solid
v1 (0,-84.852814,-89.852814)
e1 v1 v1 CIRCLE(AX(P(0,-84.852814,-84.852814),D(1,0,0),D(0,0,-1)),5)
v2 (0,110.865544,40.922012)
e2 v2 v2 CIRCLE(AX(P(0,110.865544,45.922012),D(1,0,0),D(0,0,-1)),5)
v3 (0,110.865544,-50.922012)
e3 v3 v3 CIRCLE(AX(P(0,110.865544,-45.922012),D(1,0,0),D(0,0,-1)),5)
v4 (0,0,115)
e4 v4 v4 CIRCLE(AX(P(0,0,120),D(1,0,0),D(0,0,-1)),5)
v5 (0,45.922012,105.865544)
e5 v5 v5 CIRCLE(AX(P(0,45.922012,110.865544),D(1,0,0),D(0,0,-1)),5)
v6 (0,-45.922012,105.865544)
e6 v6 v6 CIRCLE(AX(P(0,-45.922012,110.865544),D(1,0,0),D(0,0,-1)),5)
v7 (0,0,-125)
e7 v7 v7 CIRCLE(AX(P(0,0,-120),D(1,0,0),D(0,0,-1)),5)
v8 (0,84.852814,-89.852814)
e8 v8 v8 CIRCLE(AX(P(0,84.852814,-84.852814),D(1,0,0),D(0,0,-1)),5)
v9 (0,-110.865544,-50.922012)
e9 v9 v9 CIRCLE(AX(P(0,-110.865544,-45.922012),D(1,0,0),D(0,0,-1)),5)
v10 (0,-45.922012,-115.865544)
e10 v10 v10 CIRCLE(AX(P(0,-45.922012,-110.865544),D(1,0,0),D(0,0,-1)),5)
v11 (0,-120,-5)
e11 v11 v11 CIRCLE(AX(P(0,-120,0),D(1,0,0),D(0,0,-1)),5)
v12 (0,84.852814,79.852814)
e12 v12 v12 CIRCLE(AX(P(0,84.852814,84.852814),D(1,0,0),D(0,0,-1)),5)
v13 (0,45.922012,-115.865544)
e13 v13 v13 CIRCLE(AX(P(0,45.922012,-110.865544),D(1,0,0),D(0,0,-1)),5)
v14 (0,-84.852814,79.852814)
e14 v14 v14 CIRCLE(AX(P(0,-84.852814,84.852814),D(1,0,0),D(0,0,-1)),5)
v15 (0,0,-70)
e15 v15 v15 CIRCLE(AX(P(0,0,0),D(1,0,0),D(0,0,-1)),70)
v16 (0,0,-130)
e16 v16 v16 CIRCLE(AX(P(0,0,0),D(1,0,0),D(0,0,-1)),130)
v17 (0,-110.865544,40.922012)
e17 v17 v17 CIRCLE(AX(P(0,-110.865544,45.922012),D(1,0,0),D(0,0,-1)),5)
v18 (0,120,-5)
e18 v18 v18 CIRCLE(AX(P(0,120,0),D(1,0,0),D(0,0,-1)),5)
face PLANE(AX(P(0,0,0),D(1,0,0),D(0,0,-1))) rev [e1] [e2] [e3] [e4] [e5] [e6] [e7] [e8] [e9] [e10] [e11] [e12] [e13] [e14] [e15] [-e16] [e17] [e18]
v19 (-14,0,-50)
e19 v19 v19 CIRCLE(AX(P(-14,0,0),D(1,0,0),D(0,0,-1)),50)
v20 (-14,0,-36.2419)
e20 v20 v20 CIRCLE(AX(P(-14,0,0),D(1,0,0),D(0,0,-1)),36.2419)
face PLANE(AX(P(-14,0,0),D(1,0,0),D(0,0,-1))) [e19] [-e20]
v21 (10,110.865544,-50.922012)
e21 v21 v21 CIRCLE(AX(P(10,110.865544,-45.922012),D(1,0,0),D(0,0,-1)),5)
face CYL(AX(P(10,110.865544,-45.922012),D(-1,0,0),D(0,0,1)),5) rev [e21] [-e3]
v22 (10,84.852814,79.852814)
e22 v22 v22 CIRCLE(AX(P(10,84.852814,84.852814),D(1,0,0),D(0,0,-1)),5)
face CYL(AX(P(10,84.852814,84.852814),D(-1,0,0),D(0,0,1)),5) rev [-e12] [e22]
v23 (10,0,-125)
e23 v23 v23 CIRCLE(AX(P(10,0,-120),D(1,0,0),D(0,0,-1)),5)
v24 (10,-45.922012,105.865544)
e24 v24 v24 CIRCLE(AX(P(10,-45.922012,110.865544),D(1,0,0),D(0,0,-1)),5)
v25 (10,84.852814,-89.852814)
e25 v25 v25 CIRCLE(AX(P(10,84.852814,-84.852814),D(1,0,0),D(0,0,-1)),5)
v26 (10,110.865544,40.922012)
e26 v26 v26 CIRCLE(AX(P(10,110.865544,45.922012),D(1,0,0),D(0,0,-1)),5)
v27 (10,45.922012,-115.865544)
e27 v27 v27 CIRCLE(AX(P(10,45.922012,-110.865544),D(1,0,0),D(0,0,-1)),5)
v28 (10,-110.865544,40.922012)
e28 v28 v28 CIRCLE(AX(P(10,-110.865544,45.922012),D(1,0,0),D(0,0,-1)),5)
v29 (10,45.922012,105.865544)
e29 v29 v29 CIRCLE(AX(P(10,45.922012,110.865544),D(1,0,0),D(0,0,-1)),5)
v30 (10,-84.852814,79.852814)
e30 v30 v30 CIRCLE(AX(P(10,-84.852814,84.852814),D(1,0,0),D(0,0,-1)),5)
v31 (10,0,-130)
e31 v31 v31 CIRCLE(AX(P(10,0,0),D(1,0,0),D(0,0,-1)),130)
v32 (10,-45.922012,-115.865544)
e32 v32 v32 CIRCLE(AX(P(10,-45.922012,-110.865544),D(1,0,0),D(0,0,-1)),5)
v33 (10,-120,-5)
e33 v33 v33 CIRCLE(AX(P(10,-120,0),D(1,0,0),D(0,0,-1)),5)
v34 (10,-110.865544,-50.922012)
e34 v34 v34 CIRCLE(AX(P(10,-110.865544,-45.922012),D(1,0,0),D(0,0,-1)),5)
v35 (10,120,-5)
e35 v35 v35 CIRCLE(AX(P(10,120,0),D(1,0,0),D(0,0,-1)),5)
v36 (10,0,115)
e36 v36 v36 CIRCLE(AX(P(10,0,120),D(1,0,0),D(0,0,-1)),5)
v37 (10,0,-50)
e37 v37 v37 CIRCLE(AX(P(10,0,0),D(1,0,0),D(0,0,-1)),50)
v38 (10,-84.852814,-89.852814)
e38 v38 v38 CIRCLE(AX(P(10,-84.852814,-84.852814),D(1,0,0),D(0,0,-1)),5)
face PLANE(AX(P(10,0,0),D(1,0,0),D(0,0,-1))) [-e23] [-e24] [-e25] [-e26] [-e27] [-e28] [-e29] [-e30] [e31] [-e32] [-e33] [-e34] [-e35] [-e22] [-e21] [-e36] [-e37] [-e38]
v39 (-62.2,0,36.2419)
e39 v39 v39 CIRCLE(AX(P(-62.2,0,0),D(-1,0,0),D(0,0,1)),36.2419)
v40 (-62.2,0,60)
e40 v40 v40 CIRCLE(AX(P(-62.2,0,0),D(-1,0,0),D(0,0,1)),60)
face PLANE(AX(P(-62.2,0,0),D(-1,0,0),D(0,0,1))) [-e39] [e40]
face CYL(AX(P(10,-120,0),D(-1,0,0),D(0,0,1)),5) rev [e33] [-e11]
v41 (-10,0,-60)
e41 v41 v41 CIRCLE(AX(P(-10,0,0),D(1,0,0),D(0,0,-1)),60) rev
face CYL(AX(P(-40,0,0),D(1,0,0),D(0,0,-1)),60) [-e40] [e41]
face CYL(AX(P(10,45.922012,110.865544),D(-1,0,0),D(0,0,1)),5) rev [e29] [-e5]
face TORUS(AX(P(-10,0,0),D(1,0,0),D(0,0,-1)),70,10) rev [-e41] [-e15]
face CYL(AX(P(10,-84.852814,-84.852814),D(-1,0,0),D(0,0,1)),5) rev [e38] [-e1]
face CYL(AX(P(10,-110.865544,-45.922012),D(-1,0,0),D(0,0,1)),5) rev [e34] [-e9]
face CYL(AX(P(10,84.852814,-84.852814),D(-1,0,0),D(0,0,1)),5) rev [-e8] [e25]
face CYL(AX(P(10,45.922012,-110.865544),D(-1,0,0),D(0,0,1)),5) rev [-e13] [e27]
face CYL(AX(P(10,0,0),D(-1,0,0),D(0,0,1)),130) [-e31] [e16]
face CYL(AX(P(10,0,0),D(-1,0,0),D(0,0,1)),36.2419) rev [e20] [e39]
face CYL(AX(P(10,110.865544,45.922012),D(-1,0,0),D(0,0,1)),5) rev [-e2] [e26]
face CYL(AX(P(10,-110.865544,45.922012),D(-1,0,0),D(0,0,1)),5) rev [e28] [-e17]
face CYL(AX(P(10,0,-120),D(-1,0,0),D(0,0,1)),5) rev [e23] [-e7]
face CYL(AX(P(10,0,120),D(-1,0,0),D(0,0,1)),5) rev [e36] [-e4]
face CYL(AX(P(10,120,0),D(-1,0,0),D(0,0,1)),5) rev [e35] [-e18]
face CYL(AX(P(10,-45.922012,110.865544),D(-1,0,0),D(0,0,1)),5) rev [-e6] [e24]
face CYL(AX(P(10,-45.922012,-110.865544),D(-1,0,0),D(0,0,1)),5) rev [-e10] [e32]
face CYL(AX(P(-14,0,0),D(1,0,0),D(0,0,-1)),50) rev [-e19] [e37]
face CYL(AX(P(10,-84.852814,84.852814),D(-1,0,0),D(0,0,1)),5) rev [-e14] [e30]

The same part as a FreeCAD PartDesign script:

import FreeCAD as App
import Part
import Sketcher
from FreeCAD import Vector
Q = App.Units.Quantity


def edges_at(feature, points):
    """Names of the edges that pass closest to the given points."""
    edges = feature.Shape.Edges
    near = lambda p: min(range(len(edges)), key=lambda i: edges[i].distToShape(Part.Vertex(*p))[0])
    return sorted({f"Edge{near(p) + 1}" for p in points})

doc = App.newDocument("Part")
body = doc.addObject("PartDesign::Body", "Body")

sketch1 = body.newObject("Sketcher::SketchObject", "Sketch")
sketch1.AttachmentSupport = (doc.getObject("YZ_Plane"), [""])
sketch1.MapMode = "FlatFace"
sketch1.addGeometry([
    Part.Circle(Vector(0, 0, 0), Vector(0, 0, 1), 130),
    Part.Circle(Vector(-85, 85, 0), Vector(0, 0, 1), 5),
    Part.Circle(Vector(-111, 46, 0), Vector(0, 0, 1), 5),
    Part.Circle(Vector(-46, 111, 0), Vector(0, 0, 1), 5),
    Part.Circle(Vector(-120, 0, 0), Vector(0, 0, 1), 5),
    Part.Circle(Vector(-111, -46, 0), Vector(0, 0, 1), 5),
    Part.Circle(Vector(-85, -85, 0), Vector(0, 0, 1), 5),
    Part.Circle(Vector(-46, -111, 0), Vector(0, 0, 1), 5),
    Part.Circle(Vector(0, 120, 0), Vector(0, 0, 1), 5),
    Part.Circle(Vector(46, 111, 0), Vector(0, 0, 1), 5),
    Part.Circle(Vector(85, 85, 0), Vector(0, 0, 1), 5),
    Part.Circle(Vector(111, 46, 0), Vector(0, 0, 1), 5),
    Part.Circle(Vector(0, 0, 0), Vector(0, 0, 1), 36),
    Part.Circle(Vector(0, -120, 0), Vector(0, 0, 1), 5),
    Part.Circle(Vector(46, -111, 0), Vector(0, 0, 1), 5),
    Part.Circle(Vector(120, 0, 0), Vector(0, 0, 1), 5),
    Part.Circle(Vector(111, -46, 0), Vector(0, 0, 1), 5),
    Part.Circle(Vector(85, -85, 0), Vector(0, 0, 1), 5),
], False)
sketch1.addConstraint([
    Sketcher.Constraint("Coincident", 0, 3, -1, 1),
    Sketcher.Constraint("Coincident", 12, 3, -1, 1),
    Sketcher.Constraint("Equal", 1, 2),
    Sketcher.Constraint("Equal", 2, 3),
    Sketcher.Constraint("Equal", 3, 4),
    Sketcher.Constraint("Equal", 4, 5),
    Sketcher.Constraint("Equal", 5, 6),
    Sketcher.Constraint("Equal", 6, 7),
    Sketcher.Constraint("Equal", 7, 8),
    Sketcher.Constraint("Equal", 8, 9),
    Sketcher.Constraint("Equal", 9, 10),
    Sketcher.Constraint("Equal", 10, 11),
    Sketcher.Constraint("Equal", 11, 13),
    Sketcher.Constraint("Equal", 13, 14),
    Sketcher.Constraint("Equal", 14, 15),
    Sketcher.Constraint("Equal", 15, 16),
    Sketcher.Constraint("Equal", 16, 17),
    Sketcher.Constraint("Symmetric", 7, 3, 9, 3, -1, 1),
    Sketcher.Constraint("Symmetric", 6, 3, 10, 3, -1, 1),
    Sketcher.Constraint("Symmetric", 5, 3, 11, 3, -1, 1),
    Sketcher.Constraint("Symmetric", 8, 3, 13, 3, -1, 1),
    Sketcher.Constraint("Symmetric", 3, 3, 14, 3, -1, 1),
    Sketcher.Constraint("Symmetric", 4, 3, 15, 3, -1, 1),
    Sketcher.Constraint("Symmetric", 2, 3, 16, 3, -1, 1),
    Sketcher.Constraint("Symmetric", 1, 3, 17, 3, -1, 1),
    Sketcher.Constraint("Symmetric", 3, 3, 9, 3, -2),
    Sketcher.Constraint("Symmetric", 1, 3, 10, 3, -2),
    Sketcher.Constraint("Symmetric", 2, 3, 11, 3, -2),
    Sketcher.Constraint("PointOnObject", 4, 3, -1),
    Sketcher.Constraint("PointOnObject", 8, 3, -2),
    Sketcher.Constraint("Diameter", 0, Q("260 mm")),
    Sketcher.Constraint("Diameter", 1, Q("10 mm")),
    Sketcher.Constraint("DistanceX", 4, 3, -1, 1, Q("120 mm")),
    Sketcher.Constraint("DistanceY", -1, 1, 8, 3, Q("120 mm")),
    Sketcher.Constraint("Diameter", 12, Q("72.4838 mm")),
    Sketcher.Constraint("DistanceY", 2, 3, 1, 3, Q("38.930802 mm")),
    Sketcher.Constraint("DistanceX", 1, 3, 3, 3, Q("38.930802 mm")),
    Sketcher.Constraint("DistanceY", -1, 1, 2, 3, Q("45.922012 mm")),
    Sketcher.Constraint("DistanceX", 3, 3, -1, 1, Q("45.922012 mm")),
    Sketcher.Constraint("DistanceX", 2, 3, 1, 3, Q("26.01273 mm")),
    Sketcher.Constraint("DistanceY", 1, 3, 3, 3, Q("26.01273 mm")),
])
pad1 = body.newObject("PartDesign::Pad", "Pad")
pad1.Profile = sketch1
pad1.Length = 10

sketch2 = body.newObject("Sketcher::SketchObject", "Sketch001")
sketch2.AttachmentSupport = (doc.getObject("YZ_Plane"), [""])
sketch2.MapMode = "FlatFace"
sketch2.AttachmentOffset = App.Placement(Vector(0, 0, -40), App.Rotation())
sketch2.addGeometry([
    Part.Circle(Vector(0, 0, 0), Vector(0, 0, 1), 60),
    Part.Circle(Vector(0, 0, 0), Vector(0, 0, 1), 36),
], False)
sketch2.addConstraint([
    Sketcher.Constraint("Coincident", 0, 3, -1, 1),
    Sketcher.Constraint("Coincident", 1, 3, -1, 1),
    Sketcher.Constraint("Diameter", 0, Q("120 mm")),
    Sketcher.Constraint("Diameter", 1, Q("72.4838 mm")),
])
pad2 = body.newObject("PartDesign::Pad", "Pad001")
pad2.Profile = sketch2
pad2.Length = 50
doc.recompute()

fillet = body.newObject("PartDesign::Fillet", "Fillet")
fillet.Base = (pad2, edges_at(pad2, [(0, 0, 60)]))
fillet.Radius = 10

sketch3 = body.newObject("Sketcher::SketchObject", "Sketch002")
sketch3.AttachmentSupport = (doc.getObject("YZ_Plane"), [""])
sketch3.MapMode = "FlatFace"
sketch3.AttachmentOffset = App.Placement(Vector(0, 0, 10), App.Rotation())
sketch3.addGeometry(Part.Circle(Vector(0, 0, 0), Vector(0, 0, 1), 50), False)
sketch3.addConstraint([
    Sketcher.Constraint("Coincident", 0, 3, -1, 1),
    Sketcher.Constraint("Diameter", 0, Q("100 mm")),
])
pocket1 = body.newObject("PartDesign::Pocket", "Pocket")
pocket1.Profile = sketch3
pocket1.Length = 24

sketch4 = body.newObject("Sketcher::SketchObject", "Sketch003")
sketch4.AttachmentSupport = (doc.getObject("YZ_Plane"), [""])
sketch4.MapMode = "FlatFace"
sketch4.AttachmentOffset = App.Placement(Vector(0, 0, -62.2), App.Rotation())
sketch4.addGeometry([
    Part.Circle(Vector(0, 0, 0), Vector(0, 0, 1), 60),
    Part.Circle(Vector(0, 0, 0), Vector(0, 0, 1), 36),
], False)
sketch4.addConstraint([
    Sketcher.Constraint("Coincident", 0, 3, -1, 1),
    Sketcher.Constraint("Coincident", 1, 3, -1, 1),
    Sketcher.Constraint("Diameter", 0, Q("120 mm")),
    Sketcher.Constraint("Diameter", 1, Q("72.4838 mm")),
])
pad3 = body.newObject("PartDesign::Pad", "Pad002")
pad3.Profile = sketch4
pad3.Length = 22.2

doc.recompute()
